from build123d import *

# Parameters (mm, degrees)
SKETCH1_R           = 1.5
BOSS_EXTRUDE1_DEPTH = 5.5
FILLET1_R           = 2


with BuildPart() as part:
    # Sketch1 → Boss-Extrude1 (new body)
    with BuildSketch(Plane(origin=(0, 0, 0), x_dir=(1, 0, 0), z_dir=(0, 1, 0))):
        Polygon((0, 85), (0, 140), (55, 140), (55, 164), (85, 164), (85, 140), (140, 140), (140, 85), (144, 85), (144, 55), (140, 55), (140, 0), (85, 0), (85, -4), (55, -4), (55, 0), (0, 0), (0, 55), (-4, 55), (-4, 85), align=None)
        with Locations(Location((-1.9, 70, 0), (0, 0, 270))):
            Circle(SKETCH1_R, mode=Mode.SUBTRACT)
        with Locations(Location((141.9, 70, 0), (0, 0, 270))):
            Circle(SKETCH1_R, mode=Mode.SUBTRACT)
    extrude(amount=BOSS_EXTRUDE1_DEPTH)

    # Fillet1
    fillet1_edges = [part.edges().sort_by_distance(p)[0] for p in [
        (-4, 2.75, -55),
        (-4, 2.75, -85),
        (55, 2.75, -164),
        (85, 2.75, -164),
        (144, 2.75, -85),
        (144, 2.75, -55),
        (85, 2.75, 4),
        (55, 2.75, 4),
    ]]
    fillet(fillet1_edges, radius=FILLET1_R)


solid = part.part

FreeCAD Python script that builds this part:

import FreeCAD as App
import Part
import Sketcher

V = App.Vector


def edges_at(feature, points):
    """Names of the edges that pass closest to the given points."""
    edges = feature.Shape.Edges
    near = lambda p: min(range(len(edges)), key=lambda i: edges[i].distToShape(Part.Vertex(*p))[0])
    return sorted({f"Edge{near(p) + 1}" for p in points})

doc = App.newDocument("Part")
body = doc.addObject("PartDesign::Body", "Body")

# Sketch on XZ plane
sketch1 = doc.addObject("Sketcher::SketchObject", "Sketch")
body.addObject(sketch1)
sketch1.AttachmentSupport = (doc.XZ_Plane, [""])
sketch1.MapMode = "FlatFace"
sketch1.addGeometry([
    Part.LineSegment(V(0, -140, 0), V(0, -85, 0)),  # 0
    Part.LineSegment(V(0, -85, 0), V(-4, -85, 0)),  # 1
    Part.LineSegment(V(-4, -85, 0), V(-4, -55, 0)),  # 2
    Part.LineSegment(V(-4, -55, 0), V(0, -55, 0)),  # 3
    Part.LineSegment(V(0, -55, 0), V(0, 0, 0)),  # 4
    Part.LineSegment(V(0, 0, 0), V(55, 0, 0)),  # 5
    Part.LineSegment(V(55, 0, 0), V(55, 4, 0)),  # 6
    Part.LineSegment(V(55, 4, 0), V(85, 4, 0)),  # 7
    Part.LineSegment(V(85, 4, 0), V(85, 0, 0)),  # 8
    Part.LineSegment(V(85, 0, 0), V(140, 0, 0)),  # 9
    Part.LineSegment(V(140, 0, 0), V(140, -55, 0)),  # 10
    Part.LineSegment(V(140, -55, 0), V(144, -55, 0)),  # 11
    Part.LineSegment(V(144, -55, 0), V(144, -85, 0)),  # 12
    Part.LineSegment(V(144, -85, 0), V(140, -85, 0)),  # 13
    Part.LineSegment(V(140, -85, 0), V(140, -140, 0)),  # 14
    Part.LineSegment(V(140, -140, 0), V(85, -140, 0)),  # 15
    Part.LineSegment(V(85, -140, 0), V(85, -164, 0)),  # 16
    Part.LineSegment(V(85, -164, 0), V(55, -164, 0)),  # 17
    Part.LineSegment(V(55, -164, 0), V(55, -140, 0)),  # 18
    Part.LineSegment(V(55, -140, 0), V(0, -140, 0)),  # 19
    Part.Circle(V(141.9, -70, 0), V(0, 0, 1), 1.5),  # 20
    Part.Circle(V(-1.9, -70, 0), V(0, 0, 1), 1.5),  # 21
], False)
sketch1.addConstraint([
    Sketcher.Constraint("Coincident", 0, 2, 1, 1),
    Sketcher.Constraint("Coincident", 1, 2, 2, 1),
    Sketcher.Constraint("Coincident", 2, 2, 3, 1),
    Sketcher.Constraint("Coincident", 3, 2, 4, 1),
    Sketcher.Constraint("Coincident", 4, 2, 5, 1),
    Sketcher.Constraint("Coincident", 5, 2, 6, 1),
    Sketcher.Constraint("Coincident", 6, 2, 7, 1),
    Sketcher.Constraint("Coincident", 7, 2, 8, 1),
    Sketcher.Constraint("Coincident", 8, 2, 9, 1),
    Sketcher.Constraint("Coincident", 9, 2, 10, 1),
    Sketcher.Constraint("Coincident", 10, 2, 11, 1),
    Sketcher.Constraint("Coincident", 11, 2, 12, 1),
    Sketcher.Constraint("Coincident", 12, 2, 13, 1),
    Sketcher.Constraint("Coincident", 13, 2, 14, 1),
    Sketcher.Constraint("Coincident", 14, 2, 15, 1),
    Sketcher.Constraint("Coincident", 15, 2, 16, 1),
    Sketcher.Constraint("Coincident", 16, 2, 17, 1),
    Sketcher.Constraint("Coincident", 17, 2, 18, 1),
    Sketcher.Constraint("Coincident", 18, 2, 19, 1),
    Sketcher.Constraint("Coincident", 19, 2, 0, 1),
    Sketcher.Constraint("Vertical", 0),
    Sketcher.Constraint("Horizontal", 1),
    Sketcher.Constraint("Vertical", 2),
    Sketcher.Constraint("Horizontal", 3),
    Sketcher.Constraint("Vertical", 4),
    Sketcher.Constraint("Horizontal", 5),
    Sketcher.Constraint("Vertical", 6),
    Sketcher.Constraint("Horizontal", 7),
    Sketcher.Constraint("Vertical", 8),
    Sketcher.Constraint("Horizontal", 9),
    Sketcher.Constraint("Vertical", 10),
    Sketcher.Constraint("Horizontal", 11),
    Sketcher.Constraint("Vertical", 12),
    Sketcher.Constraint("Horizontal", 13),
    Sketcher.Constraint("Vertical", 14),
    Sketcher.Constraint("Horizontal", 15),
    Sketcher.Constraint("Vertical", 16),
    Sketcher.Constraint("Horizontal", 17),
    Sketcher.Constraint("Vertical", 18),
    Sketcher.Constraint("Horizontal", 19),
    Sketcher.Constraint("Coincident", 4, 2, -1, 1),
    Sketcher.Constraint("Equal", 20, 21),
    Sketcher.Constraint("PointOnObject", 0, 2, -2),
    Sketcher.Constraint("PointOnObject", 8, 2, -1),
    Sketcher.Constraint("Horizontal", 20, 3, 21, 3),
    Sketcher.Constraint("Horizontal", 3, 2, 10, 2),
    Sketcher.Constraint("Horizontal", 1, 2, 12, 2),
    Sketcher.Constraint("Horizontal", 15, 2, 18, 2),
    Sketcher.Constraint("Vertical", 10, 2, 13, 2),
    Sketcher.Constraint("Vertical", 8, 2, 15, 2),
    Sketcher.Constraint("Vertical", 6, 2, 17, 2),
    Sketcher.Constraint("Equal", 5, 9),
    Sketcher.Constraint("Equal", 3, 11),
    Sketcher.Constraint("Equal", 19, 0),
    Sketcher.Constraint("Equal", 17, 2),
    Sketcher.Constraint("Equal", 0, 4),
    Sketcher.Constraint("Equal", 13, 6),
    Sketcher.Constraint("Diameter", 20, 3.0),
    Sketcher.Constraint("DistanceX", 1, 2, 1, 1, 4.0),
    Sketcher.Constraint("DistanceX", 5, 1, 5, 2, 55.0),
    Sketcher.Constraint("DistanceX", 7, 1, 7, 2, 30.0),
    Sketcher.Constraint("DistanceY", 16, 2, 16, 1, 24.0),
    Sketcher.Constraint("DistanceY", 20, 3, -1, 1, 70.0),
    Sketcher.Constraint("DistanceX", -1, 1, 20, 3, 141.9),
    Sketcher.Constraint("DistanceX", 21, 3, -1, 1, 1.9),
])
pad1 = doc.addObject("PartDesign::Pad", "Pad")
body.addObject(pad1)
pad1.Profile = sketch1
pad1.Length = 5.5
pad1.Reversed = True
doc.recompute()

fillet = doc.addObject("PartDesign::Fillet", "Fillet")
body.addObject(fillet)
fillet.Base = (pad1, edges_at(pad1, [
    (-4, 2.75, -55),
    (-4, 2.75, -85),
    (55, 2.75, -164),
    (85, 2.75, -164),
    (144, 2.75, -85),
    (144, 2.75, -55),
    (85, 2.75, 4),
    (55, 2.75, 4),
]))
fillet.Radius = 2

doc.recompute()
